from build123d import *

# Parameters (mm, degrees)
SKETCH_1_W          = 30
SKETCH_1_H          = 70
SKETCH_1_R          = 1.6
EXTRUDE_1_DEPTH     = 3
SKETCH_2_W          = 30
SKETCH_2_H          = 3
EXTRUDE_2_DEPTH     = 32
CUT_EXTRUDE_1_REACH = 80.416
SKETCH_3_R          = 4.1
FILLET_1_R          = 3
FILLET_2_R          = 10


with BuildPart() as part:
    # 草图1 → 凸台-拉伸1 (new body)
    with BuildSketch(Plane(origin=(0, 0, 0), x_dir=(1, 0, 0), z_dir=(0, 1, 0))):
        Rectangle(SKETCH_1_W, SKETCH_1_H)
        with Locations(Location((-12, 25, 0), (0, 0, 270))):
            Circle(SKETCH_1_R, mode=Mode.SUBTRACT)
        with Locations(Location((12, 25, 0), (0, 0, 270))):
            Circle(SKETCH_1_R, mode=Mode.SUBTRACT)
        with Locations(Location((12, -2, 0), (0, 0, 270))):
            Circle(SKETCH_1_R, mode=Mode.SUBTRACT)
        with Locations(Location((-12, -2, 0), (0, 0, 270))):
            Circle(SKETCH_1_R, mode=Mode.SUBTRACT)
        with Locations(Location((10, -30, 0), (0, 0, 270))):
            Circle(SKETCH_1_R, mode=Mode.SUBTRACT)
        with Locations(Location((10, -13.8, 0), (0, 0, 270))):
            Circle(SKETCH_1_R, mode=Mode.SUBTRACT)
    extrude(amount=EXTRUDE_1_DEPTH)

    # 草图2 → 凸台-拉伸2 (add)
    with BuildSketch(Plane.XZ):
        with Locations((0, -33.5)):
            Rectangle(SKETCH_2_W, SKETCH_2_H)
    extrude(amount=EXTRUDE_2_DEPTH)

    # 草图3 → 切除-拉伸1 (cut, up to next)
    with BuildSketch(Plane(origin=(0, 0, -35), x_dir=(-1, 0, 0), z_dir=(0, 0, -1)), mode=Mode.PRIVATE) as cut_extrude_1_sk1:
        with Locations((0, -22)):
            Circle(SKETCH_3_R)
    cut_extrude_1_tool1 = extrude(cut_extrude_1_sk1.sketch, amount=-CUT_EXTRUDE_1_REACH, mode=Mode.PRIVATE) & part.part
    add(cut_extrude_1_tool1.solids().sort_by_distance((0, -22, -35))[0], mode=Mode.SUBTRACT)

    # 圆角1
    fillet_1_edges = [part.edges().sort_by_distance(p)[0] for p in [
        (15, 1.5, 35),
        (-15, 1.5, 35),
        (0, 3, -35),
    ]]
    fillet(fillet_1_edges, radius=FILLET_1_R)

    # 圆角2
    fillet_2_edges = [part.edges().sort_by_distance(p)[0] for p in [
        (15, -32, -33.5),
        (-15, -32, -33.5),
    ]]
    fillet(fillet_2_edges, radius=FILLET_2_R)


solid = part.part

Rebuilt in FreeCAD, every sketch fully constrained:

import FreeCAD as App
import Part
import Sketcher


def edges_at(feature, points):
    """Names of the edges that pass closest to the given points."""
    edges = feature.Shape.Edges
    near = lambda p: min(range(len(edges)), key=lambda i: edges[i].distToShape(Part.Vertex(*p))[0])
    return sorted({f"Edge{near(p) + 1}" for p in points})

doc = App.newDocument("Part")
params = doc.addObject("Spreadsheet::Sheet", "Params")
for row, (alias, value) in enumerate([
    ("sketch1_diameter", "3.2 mm"),
    ("sketch1_width", "30 mm"),
    ("sketch1_height", "70 mm"),
    ("pad1_length", "3 mm"),
    ("sketch2_width", "30 mm"),
    ("sketch2_height", "3 mm"),
    ("pad2_length", "32 mm"),
    ("sketch3_diameter", "8.2 mm"),
    ("fillet_radius", "3 mm"),
    ("fillet2_radius", "10 mm"),
], start=1):
    params.set(f"A{row}", alias)
    params.set(f"B{row}", "=" + value)
    params.setAlias(f"B{row}", alias)

body = doc.addObject("PartDesign::Body", "Body")

# Sketch on XZ plane
sketch1 = doc.addObject("Sketcher::SketchObject", "Sketch")
body.addObject(sketch1)
sketch1.AttachmentSupport = (doc.XZ_Plane, [""])
sketch1.MapMode = "FlatFace"
sketch1.addGeometry(Part.LineSegment(App.Vector(-15, -35, 0), App.Vector(-15, 35, 0)), False)
sketch1.addGeometry(Part.LineSegment(App.Vector(-15, 35, 0), App.Vector(15, 35, 0)), False)
sketch1.addGeometry(Part.LineSegment(App.Vector(15, 35, 0), App.Vector(15, -35, 0)), False)
sketch1.addGeometry(Part.LineSegment(App.Vector(15, -35, 0), App.Vector(-15, -35, 0)), False)
sketch1.addGeometry(Part.Circle(App.Vector(10, 30, 0), App.Vector(0, 0, 1), 1.6), False)
sketch1.addGeometry(Part.Circle(App.Vector(10, 13.8, 0), App.Vector(0, 0, 1), 1.6), False)
sketch1.addGeometry(Part.Circle(App.Vector(-12, 2, 0), App.Vector(0, 0, 1), 1.6), False)
sketch1.addGeometry(Part.Circle(App.Vector(-12, -25, 0), App.Vector(0, 0, 1), 1.6), False)
sketch1.addGeometry(Part.Circle(App.Vector(12, 2, 0), App.Vector(0, 0, 1), 1.6), False)
sketch1.addGeometry(Part.Circle(App.Vector(12, -25, 0), App.Vector(0, 0, 1), 1.6), False)
sketch1.addConstraint(Sketcher.Constraint("Coincident", 0, 2, 1, 1))
sketch1.addConstraint(Sketcher.Constraint("Coincident", 1, 2, 2, 1))
sketch1.addConstraint(Sketcher.Constraint("Coincident", 2, 2, 3, 1))
sketch1.addConstraint(Sketcher.Constraint("Coincident", 3, 2, 0, 1))
sketch1.addConstraint(Sketcher.Constraint("Vertical", 0))
sketch1.addConstraint(Sketcher.Constraint("Horizontal", 1))
sketch1.addConstraint(Sketcher.Constraint("Vertical", 2))
sketch1.addConstraint(Sketcher.Constraint("Horizontal", 3))
sketch1.addConstraint(Sketcher.Constraint("Equal", 4, 5))
sketch1.addConstraint(Sketcher.Constraint("Equal", 5, 6))
sketch1.addConstraint(Sketcher.Constraint("Equal", 6, 7))
sketch1.addConstraint(Sketcher.Constraint("Equal", 7, 8))
sketch1.addConstraint(Sketcher.Constraint("Equal", 8, 9))
sketch1.addConstraint(Sketcher.Constraint("Symmetric", 0, 2, 2, 2, -1, 1))
sketch1.addConstraint(Sketcher.Constraint("Symmetric", 6, 3, 8, 3, -2))
sketch1.addConstraint(Sketcher.Constraint("Symmetric", 7, 3, 9, 3, -2))
sketch1.addConstraint(Sketcher.Constraint("Vertical", 4, 3, 5, 3))
sketch1.addConstraint(Sketcher.Constraint("Vertical", 6, 3, 7, 3))
sketch1.addConstraint(Sketcher.Constraint("Diameter", 4, 3.2))
sketch1.addConstraint(Sketcher.Constraint("DistanceX", 1, 1, 1, 2, 30.0))
sketch1.addConstraint(Sketcher.Constraint("DistanceY", 0, 1, 0, 2, 70.0))
sketch1.addConstraint(Sketcher.Constraint("DistanceX", -1, 1, 4, 3, 10.0))
sketch1.addConstraint(Sketcher.Constraint("DistanceY", -1, 1, 4, 3, 30.0))
sketch1.addConstraint(Sketcher.Constraint("DistanceX", 6, 3, -1, 1, 12.0))
sketch1.addConstraint(Sketcher.Constraint("DistanceY", -1, 1, 6, 3, 2.0))
sketch1.addConstraint(Sketcher.Constraint("DistanceY", 7, 3, -1, 1, 25.0))
sketch1.addConstraint(Sketcher.Constraint("DistanceY", -1, 1, 5, 3, 13.8))
sketch1.setExpression("Constraints[18]", "Params.sketch1_diameter")
sketch1.setExpression("Constraints[19]", "Params.sketch1_width")
sketch1.setExpression("Constraints[20]", "Params.sketch1_height")
pad1 = doc.addObject("PartDesign::Pad", "Pad")
body.addObject(pad1)
pad1.Profile = sketch1
pad1.setExpression("Length", "Params.pad1_length")
pad1.Reversed = True

# Sketch on XZ plane
sketch2 = doc.addObject("Sketcher::SketchObject", "Sketch001")
body.addObject(sketch2)
sketch2.AttachmentSupport = (doc.XZ_Plane, [""])
sketch2.MapMode = "FlatFace"
sketch2.addGeometry(Part.LineSegment(App.Vector(-15, -32, 0), App.Vector(-15, -35, 0)), False)
sketch2.addGeometry(Part.LineSegment(App.Vector(-15, -35, 0), App.Vector(15, -35, 0)), False)
sketch2.addGeometry(Part.LineSegment(App.Vector(15, -35, 0), App.Vector(15, -32, 0)), False)
sketch2.addGeometry(Part.LineSegment(App.Vector(15, -32, 0), App.Vector(-15, -32, 0)), False)
sketch2.addConstraint(Sketcher.Constraint("Coincident", 0, 2, 1, 1))
sketch2.addConstraint(Sketcher.Constraint("Coincident", 1, 2, 2, 1))
sketch2.addConstraint(Sketcher.Constraint("Coincident", 2, 2, 3, 1))
sketch2.addConstraint(Sketcher.Constraint("Coincident", 3, 2, 0, 1))
sketch2.addConstraint(Sketcher.Constraint("Vertical", 0))
sketch2.addConstraint(Sketcher.Constraint("Horizontal", 1))
sketch2.addConstraint(Sketcher.Constraint("Vertical", 2))
sketch2.addConstraint(Sketcher.Constraint("Horizontal", 3))
sketch2.addConstraint(Sketcher.Constraint("DistanceX", 1, 1, 1, 2, 30.0))
sketch2.addConstraint(Sketcher.Constraint("DistanceY", 0, 2, 0, 1, 3.0))
sketch2.addConstraint(Sketcher.Constraint("DistanceX", 0, 2, -1, 1, 15.0))
sketch2.addConstraint(Sketcher.Constraint("DistanceY", 0, 2, -1, 1, 35.0))
sketch2.setExpression("Constraints[8]", "Params.sketch2_width")
sketch2.setExpression("Constraints[9]", "Params.sketch2_height")
pad2 = doc.addObject("PartDesign::Pad", "Pad001")
body.addObject(pad2)
pad2.Profile = sketch2
pad2.setExpression("Length", "Params.pad2_length")

# Sketch on XY plane
sketch3 = doc.addObject("Sketcher::SketchObject", "Sketch002")
body.addObject(sketch3)
sketch3.AttachmentSupport = (doc.XY_Plane, [""])
sketch3.MapMode = "FlatFace"
sketch3.AttachmentOffset = App.Placement(App.Vector(0, 0, -35), App.Rotation())
sketch3.addGeometry(Part.Circle(App.Vector(0, -22, 0), App.Vector(0, 0, 1), 4.1), False)
sketch3.addConstraint(Sketcher.Constraint("PointOnObject", 0, 3, -2))
sketch3.addConstraint(Sketcher.Constraint("Diameter", 0, 8.2))
sketch3.addConstraint(Sketcher.Constraint("DistanceY", 0, 3, -1, 1, 22.0))
sketch3.setExpression("Constraints[1]", "Params.sketch3_diameter")
pocket1 = doc.addObject("PartDesign::Pocket", "Pocket")
body.addObject(pocket1)
pocket1.Profile = sketch3
pocket1.Type = "UpToFirst"
pocket1.Reversed = True
doc.recompute()

fillet = doc.addObject("PartDesign::Fillet", "Fillet")
body.addObject(fillet)
fillet.Base = (pocket1, edges_at(pocket1, [(15, 1.5, 35), (-15, 1.5, 35), (0, 3, -35)]))
fillet.setExpression("Radius", "Params.fillet_radius")
doc.recompute()

fillet2 = doc.addObject("PartDesign::Fillet", "Fillet001")
body.addObject(fillet2)
fillet2.Base = (fillet, edges_at(fillet, [(15, -32, -33.5), (-15, -32, -33.5)]))
fillet2.setExpression("Radius", "Params.fillet2_radius")

doc.recompute()
